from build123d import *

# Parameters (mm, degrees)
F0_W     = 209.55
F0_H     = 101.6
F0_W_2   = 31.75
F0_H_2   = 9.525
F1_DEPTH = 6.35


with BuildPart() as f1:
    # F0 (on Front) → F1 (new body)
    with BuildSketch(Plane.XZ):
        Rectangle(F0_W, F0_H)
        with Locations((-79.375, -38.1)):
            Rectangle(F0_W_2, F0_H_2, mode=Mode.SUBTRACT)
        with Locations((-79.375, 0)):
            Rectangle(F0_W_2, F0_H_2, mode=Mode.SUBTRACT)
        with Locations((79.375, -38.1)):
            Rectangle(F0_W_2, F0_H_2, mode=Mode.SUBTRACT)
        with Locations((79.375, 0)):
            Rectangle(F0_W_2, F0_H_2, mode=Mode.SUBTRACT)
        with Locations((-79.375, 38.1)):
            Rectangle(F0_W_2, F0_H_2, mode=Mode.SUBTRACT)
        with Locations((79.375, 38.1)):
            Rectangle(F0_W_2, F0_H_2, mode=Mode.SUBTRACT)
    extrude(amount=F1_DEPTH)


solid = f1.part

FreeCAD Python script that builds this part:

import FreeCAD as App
import Part
import Sketcher

V = App.Vector
Q = App.Units.Quantity


def add_polygon(sketch, points):
    """Adds a closed chain of lines whose ends are joined by coincident constraints."""
    first, n = sketch.GeometryCount, len(points)
    for a, b in zip(points, points[1:] + points[:1]):
        sketch.addGeometry(Part.LineSegment(App.Vector(*a, 0), App.Vector(*b, 0)), False)
    for i in range(n):
        sketch.addConstraint(Sketcher.Constraint("Coincident", first + i, 2, first + (i + 1) % n, 1))

doc = App.newDocument("Part")
body = doc.addObject("PartDesign::Body", "Body")

# Sketch on XZ plane
sketch1 = doc.addObject("Sketcher::SketchObject", "Sketch")
body.addObject(sketch1)
sketch1.AttachmentSupport = (doc.XZ_Plane, [""])
sketch1.MapMode = "FlatFace"
add_polygon(sketch1, [(-105, 51), (-105, -51), (105, -51), (105, 51)])  # lines 0-3
add_polygon(sketch1, [(-64, -43), (-95, -43), (-95, -33), (-64, -33)])  # lines 4-7
add_polygon(sketch1, [(95, -43), (64, -43), (64, -33), (95, -33)])  # lines 8-11
add_polygon(sketch1, [(-64, -5), (-95, -5), (-95, 5), (-64, 5)])  # lines 12-15
add_polygon(sketch1, [(-64, 33), (-95, 33), (-95, 43), (-64, 43)])  # lines 16-19
add_polygon(sketch1, [(95, -5), (64, -5), (64, 5), (95, 5)])  # lines 20-23
add_polygon(sketch1, [(95, 33), (64, 33), (64, 43), (95, 43)])  # lines 24-27
sketch1.addConstraint([
    Sketcher.Constraint("Vertical", 0),
    Sketcher.Constraint("Horizontal", 1),
    Sketcher.Constraint("Vertical", 2),
    Sketcher.Constraint("Horizontal", 3),
    Sketcher.Constraint("Horizontal", 4),
    Sketcher.Constraint("Vertical", 5),
    Sketcher.Constraint("Horizontal", 6),
    Sketcher.Constraint("Vertical", 7),
    Sketcher.Constraint("Horizontal", 8),
    Sketcher.Constraint("Vertical", 9),
    Sketcher.Constraint("Horizontal", 10),
    Sketcher.Constraint("Vertical", 11),
    Sketcher.Constraint("Horizontal", 12),
    Sketcher.Constraint("Vertical", 13),
    Sketcher.Constraint("Horizontal", 14),
    Sketcher.Constraint("Vertical", 15),
    Sketcher.Constraint("Horizontal", 16),
    Sketcher.Constraint("Vertical", 17),
    Sketcher.Constraint("Horizontal", 18),
    Sketcher.Constraint("Vertical", 19),
    Sketcher.Constraint("Horizontal", 20),
    Sketcher.Constraint("Vertical", 21),
    Sketcher.Constraint("Horizontal", 22),
    Sketcher.Constraint("Vertical", 23),
    Sketcher.Constraint("Horizontal", 24),
    Sketcher.Constraint("Vertical", 25),
    Sketcher.Constraint("Horizontal", 26),
    Sketcher.Constraint("Vertical", 27),
    Sketcher.Constraint("Symmetric", 0, 2, 2, 2, -1, 1),
    Sketcher.Constraint("Symmetric", 10, 2, 16, 2, -1, 1),
    Sketcher.Constraint("Symmetric", 8, 2, 18, 2, -1, 1),
    Sketcher.Constraint("Symmetric", 14, 2, 20, 2, -1, 1),
    Sketcher.Constraint("Symmetric", 12, 2, 22, 2, -1, 1),
    Sketcher.Constraint("Symmetric", 6, 2, 24, 2, -1, 1),
    Sketcher.Constraint("Symmetric", 4, 2, 26, 2, -1, 1),
    Sketcher.Constraint("Symmetric", 7, 2, 8, 2, -2),
    Sketcher.Constraint("Symmetric", 5, 2, 10, 2, -2),
    Sketcher.Constraint("Horizontal", 15, 2, 20, 2),
    Sketcher.Constraint("Vertical", 5, 2, 12, 2),
    Sketcher.Constraint("Vertical", 7, 2, 14, 2),
    Sketcher.Constraint("Equal", 11, 13),
    Sketcher.Constraint("DistanceY", 0, 2, 0, 1, Q("4 in")),
    Sketcher.Constraint("DistanceX", 7, 2, 8, 2, Q("5 in")),
    Sketcher.Constraint("DistanceX", 1, 1, 1, 2, Q("8.25 in")),
    Sketcher.Constraint("DistanceX", 4, 2, 4, 1, Q("1.25 in")),
    Sketcher.Constraint("DistanceY", 4, 2, 12, 2, Q("1.5 in")),
    Sketcher.Constraint("DistanceY", 5, 1, 5, 2, Q("0.375 in")),
])
pad1 = doc.addObject("PartDesign::Pad", "Pad")
body.addObject(pad1)
pad1.Profile = sketch1
pad1.Length = Q("0.25 in")

doc.recompute()
